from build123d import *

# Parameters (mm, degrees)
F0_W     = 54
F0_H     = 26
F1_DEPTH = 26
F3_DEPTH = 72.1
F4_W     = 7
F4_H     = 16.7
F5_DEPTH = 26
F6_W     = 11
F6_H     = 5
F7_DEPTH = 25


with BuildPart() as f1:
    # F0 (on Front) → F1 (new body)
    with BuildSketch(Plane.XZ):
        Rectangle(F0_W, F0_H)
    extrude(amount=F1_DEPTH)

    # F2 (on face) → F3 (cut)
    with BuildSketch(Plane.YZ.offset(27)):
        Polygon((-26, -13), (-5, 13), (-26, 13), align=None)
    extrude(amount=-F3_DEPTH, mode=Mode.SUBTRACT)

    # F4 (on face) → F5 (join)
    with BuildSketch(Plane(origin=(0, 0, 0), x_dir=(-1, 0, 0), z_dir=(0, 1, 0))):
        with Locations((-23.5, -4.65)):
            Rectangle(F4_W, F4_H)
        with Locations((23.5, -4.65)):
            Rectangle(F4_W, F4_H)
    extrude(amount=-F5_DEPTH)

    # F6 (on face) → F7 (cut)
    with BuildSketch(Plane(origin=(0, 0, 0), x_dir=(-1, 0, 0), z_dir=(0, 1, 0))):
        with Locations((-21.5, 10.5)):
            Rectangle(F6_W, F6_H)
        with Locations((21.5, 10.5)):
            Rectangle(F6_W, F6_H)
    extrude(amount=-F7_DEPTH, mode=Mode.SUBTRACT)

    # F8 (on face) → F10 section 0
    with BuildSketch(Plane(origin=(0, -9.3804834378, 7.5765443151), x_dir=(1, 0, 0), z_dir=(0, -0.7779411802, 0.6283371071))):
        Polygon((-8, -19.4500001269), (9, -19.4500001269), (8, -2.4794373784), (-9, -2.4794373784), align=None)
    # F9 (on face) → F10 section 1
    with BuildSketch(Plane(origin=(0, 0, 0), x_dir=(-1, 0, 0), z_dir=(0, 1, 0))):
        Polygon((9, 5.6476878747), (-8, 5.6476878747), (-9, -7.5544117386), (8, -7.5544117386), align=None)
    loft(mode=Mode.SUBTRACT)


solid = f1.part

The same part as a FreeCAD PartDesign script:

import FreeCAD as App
import Part
import Sketcher
from FreeCAD import Vector
Q = App.Units.Quantity


def add_polygon(sketch, points):
    """Adds a closed chain of lines whose ends are joined by coincident constraints."""
    first, n = sketch.GeometryCount, len(points)
    for a, b in zip(points, points[1:] + points[:1]):
        sketch.addGeometry(Part.LineSegment(App.Vector(*a, 0), App.Vector(*b, 0)), False)
    for i in range(n):
        sketch.addConstraint(Sketcher.Constraint("Coincident", first + i, 2, first + (i + 1) % n, 1))

doc = App.newDocument("Part")
body = doc.addObject("PartDesign::Body", "Body")

# Sketch on XZ plane
sketch1 = doc.addObject("Sketcher::SketchObject", "Sketch")
body.addObject(sketch1)
sketch1.AttachmentSupport = (doc.XZ_Plane, [""])
sketch1.MapMode = "FlatFace"
add_polygon(sketch1, [(-27, 13), (-27, -13), (27, -13), (27, 13)])  # lines 0-3
sketch1.addConstraint(Sketcher.Constraint("Vertical", 0))
sketch1.addConstraint(Sketcher.Constraint("Horizontal", 1))
sketch1.addConstraint(Sketcher.Constraint("Vertical", 2))
sketch1.addConstraint(Sketcher.Constraint("Horizontal", 3))
sketch1.addConstraint(Sketcher.Constraint("Symmetric", 0, 2, 2, 2, -1, 1))
sketch1.addConstraint(Sketcher.Constraint("DistanceX", 1, 1, 1, 2, Q("54 mm")))
sketch1.addConstraint(Sketcher.Constraint("DistanceY", 0, 2, 0, 1, Q("26 mm")))
pad1 = doc.addObject("PartDesign::Pad", "Pad")
body.addObject(pad1)
pad1.Profile = sketch1
pad1.Length = 26

# Sketch on YZ plane
sketch2 = doc.addObject("Sketcher::SketchObject", "Sketch001")
body.addObject(sketch2)
sketch2.AttachmentSupport = (doc.YZ_Plane, [""])
sketch2.MapMode = "FlatFace"
sketch2.AttachmentOffset = App.Placement(Vector(0, 0, 27), App.Rotation())
add_polygon(sketch2, [(-26, -13), (-5, 13), (-26, 13)])  # lines 0-2
sketch2.addConstraint(Sketcher.Constraint("Horizontal", 1))
sketch2.addConstraint(Sketcher.Constraint("Vertical", 2))
sketch2.addConstraint(Sketcher.Constraint("DistanceX", 1, 2, 1, 1, Q("21 mm")))
sketch2.addConstraint(Sketcher.Constraint("DistanceY", 2, 2, 2, 1, Q("26 mm")))
sketch2.addConstraint(Sketcher.Constraint("DistanceX", 0, 2, -1, 1, Q("5 mm")))
sketch2.addConstraint(Sketcher.Constraint("DistanceY", -1, 1, 0, 2, Q("13 mm")))
pocket1 = doc.addObject("PartDesign::Pocket", "Pocket")
body.addObject(pocket1)
pocket1.Profile = sketch2
pocket1.Length = 72.1

# Sketch on XZ plane
sketch3 = doc.addObject("Sketcher::SketchObject", "Sketch002")
body.addObject(sketch3)
sketch3.AttachmentSupport = (doc.XZ_Plane, [""])
sketch3.MapMode = "FlatFace"
add_polygon(sketch3, [(27, 4), (27, -13), (20, -13), (20, 4)])  # lines 0-3
add_polygon(sketch3, [(-20, 4), (-20, -13), (-27, -13), (-27, 4)])  # lines 4-7
sketch3.addConstraint(Sketcher.Constraint("Vertical", 0))
sketch3.addConstraint(Sketcher.Constraint("Horizontal", 1))
sketch3.addConstraint(Sketcher.Constraint("Vertical", 2))
sketch3.addConstraint(Sketcher.Constraint("Horizontal", 3))
sketch3.addConstraint(Sketcher.Constraint("Vertical", 4))
sketch3.addConstraint(Sketcher.Constraint("Horizontal", 5))
sketch3.addConstraint(Sketcher.Constraint("Vertical", 6))
sketch3.addConstraint(Sketcher.Constraint("Horizontal", 7))
sketch3.addConstraint(Sketcher.Constraint("Symmetric", 1, 2, 4, 2, -2))
sketch3.addConstraint(Sketcher.Constraint("Symmetric", 3, 2, 6, 2, -2))
sketch3.addConstraint(Sketcher.Constraint("DistanceX", 1, 2, 1, 1, Q("7 mm")))
sketch3.addConstraint(Sketcher.Constraint("DistanceY", 0, 2, 0, 1, Q("16.7 mm")))
sketch3.addConstraint(Sketcher.Constraint("DistanceX", -1, 1, 0, 2, Q("27 mm")))
sketch3.addConstraint(Sketcher.Constraint("DistanceY", 0, 2, -1, 1, Q("13 mm")))
pad2 = doc.addObject("PartDesign::Pad", "Pad001")
body.addObject(pad2)
pad2.Profile = sketch3
pad2.Length = 26

# Sketch on XZ plane
sketch4 = doc.addObject("Sketcher::SketchObject", "Sketch003")
body.addObject(sketch4)
sketch4.AttachmentSupport = (doc.XZ_Plane, [""])
sketch4.MapMode = "FlatFace"
add_polygon(sketch4, [(27, 13), (27, 8), (16, 8), (16, 13)])  # lines 0-3
add_polygon(sketch4, [(-16, 13), (-16, 8), (-27, 8), (-27, 13)])  # lines 4-7
sketch4.addConstraint(Sketcher.Constraint("Vertical", 0))
sketch4.addConstraint(Sketcher.Constraint("Horizontal", 1))
sketch4.addConstraint(Sketcher.Constraint("Vertical", 2))
sketch4.addConstraint(Sketcher.Constraint("Horizontal", 3))
sketch4.addConstraint(Sketcher.Constraint("Vertical", 4))
sketch4.addConstraint(Sketcher.Constraint("Horizontal", 5))
sketch4.addConstraint(Sketcher.Constraint("Vertical", 6))
sketch4.addConstraint(Sketcher.Constraint("Horizontal", 7))
sketch4.addConstraint(Sketcher.Constraint("Symmetric", 1, 2, 4, 2, -2))
sketch4.addConstraint(Sketcher.Constraint("Symmetric", 3, 2, 6, 2, -2))
sketch4.addConstraint(Sketcher.Constraint("DistanceX", 1, 2, 1, 1, Q("11 mm")))
sketch4.addConstraint(Sketcher.Constraint("DistanceY", 0, 2, 0, 1, Q("5 mm")))
sketch4.addConstraint(Sketcher.Constraint("DistanceX", -1, 1, 0, 2, Q("27 mm")))
sketch4.addConstraint(Sketcher.Constraint("DistanceY", -1, 1, 0, 2, Q("8 mm")))
pocket2 = doc.addObject("PartDesign::Pocket", "Pocket001")
body.addObject(pocket2)
pocket2.Profile = sketch4
pocket2.Length = 25
pocket2.Reversed = True

# Sketch on an angled plane
sketch5 = doc.addObject("Sketcher::SketchObject", "Sketch004")
body.addObject(sketch5)
sketch5.Placement = App.Placement(Vector(0, -9.380483, 7.576544), App.Rotation(Vector(1, 0, 0), Vector(0, 0.628337107, 0.77794118), Vector(0, -0.77794118, 0.628337107), "ZXY"))
add_polygon(sketch5, [(-8, -19), (9, -19), (8, -2), (-9, -2)])  # lines 0-3
sketch5.addConstraint(Sketcher.Constraint("Horizontal", 0))
sketch5.addConstraint(Sketcher.Constraint("Horizontal", 2))
sketch5.addConstraint(Sketcher.Constraint("Parallel", 1, 3))
sketch5.addConstraint(Sketcher.Constraint("DistanceX", 0, 1, 0, 2, Q("17 mm")))
sketch5.addConstraint(Sketcher.Constraint("Distance", 1, Q("17 mm")))
sketch5.addConstraint(Sketcher.Constraint("DistanceX", -1, 1, 0, 2, Q("9 mm")))
sketch5.addConstraint(Sketcher.Constraint("DistanceX", -1, 1, 1, 2, Q("8 mm")))
sketch5.addConstraint(Sketcher.Constraint("DistanceY", 0, 2, -1, 1, Q("19.45 mm")))

# Sketch on XZ plane
sketch6 = doc.addObject("Sketcher::SketchObject", "Sketch005")
body.addObject(sketch6)
sketch6.AttachmentSupport = (doc.XZ_Plane, [""])
sketch6.MapMode = "FlatFace"
add_polygon(sketch6, [(-9, 6), (8, 6), (9, -8), (-8, -8)])  # lines 0-3
sketch6.addConstraint(Sketcher.Constraint("Horizontal", 0))
sketch6.addConstraint(Sketcher.Constraint("Horizontal", 2))
sketch6.addConstraint(Sketcher.Constraint("Parallel", 1, 3))
sketch6.addConstraint(Sketcher.Constraint("DistanceX", 0, 1, 0, 2, Q("17 mm")))
sketch6.addConstraint(Sketcher.Constraint("DistanceX", -1, 1, 0, 2, Q("8 mm")))
sketch6.addConstraint(Sketcher.Constraint("DistanceX", -1, 1, 1, 2, Q("9 mm")))
sketch6.addConstraint(Sketcher.Constraint("DistanceY", 1, 2, 0, 2, Q("13.2021 mm")))
sketch6.addConstraint(Sketcher.Constraint("DistanceY", 1, 2, -1, 1, Q("7.554412 mm")))

subtractiveloft = doc.addObject("PartDesign::SubtractiveLoft", "SubtractiveLoft")
body.addObject(subtractiveloft)
subtractiveloft.Profile = sketch5
subtractiveloft.Sections = [sketch6]

doc.recompute()
